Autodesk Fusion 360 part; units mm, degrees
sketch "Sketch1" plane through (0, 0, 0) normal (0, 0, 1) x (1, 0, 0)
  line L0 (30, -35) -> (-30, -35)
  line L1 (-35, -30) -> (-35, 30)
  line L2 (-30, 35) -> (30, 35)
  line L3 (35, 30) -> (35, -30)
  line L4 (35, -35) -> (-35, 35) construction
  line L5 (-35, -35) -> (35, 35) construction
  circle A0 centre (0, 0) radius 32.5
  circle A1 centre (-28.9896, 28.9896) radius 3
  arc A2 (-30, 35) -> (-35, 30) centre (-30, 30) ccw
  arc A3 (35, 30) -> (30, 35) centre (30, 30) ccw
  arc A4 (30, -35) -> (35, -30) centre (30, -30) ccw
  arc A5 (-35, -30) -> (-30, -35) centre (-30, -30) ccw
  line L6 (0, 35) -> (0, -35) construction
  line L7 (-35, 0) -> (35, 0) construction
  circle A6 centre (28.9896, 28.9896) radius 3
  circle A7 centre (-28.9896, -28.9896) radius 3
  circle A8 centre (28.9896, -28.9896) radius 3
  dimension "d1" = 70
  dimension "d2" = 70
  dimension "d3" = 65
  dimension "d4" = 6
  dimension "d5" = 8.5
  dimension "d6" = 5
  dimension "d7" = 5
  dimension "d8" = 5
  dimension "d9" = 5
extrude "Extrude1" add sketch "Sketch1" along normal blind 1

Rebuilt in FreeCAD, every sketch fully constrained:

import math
import FreeCAD as App
import Part
import Sketcher

V = App.Vector

doc = App.newDocument("Part")
body = doc.addObject("PartDesign::Body", "Body")

sketch1 = body.newObject("Sketcher::SketchObject", "Sketch")
sketch1.AttachmentSupport = (doc.getObject("XY_Plane"), [""])
sketch1.MapMode = "FlatFace"
sketch1.addGeometry([
    Part.LineSegment(V(-30, -35, 0), V(30, -35, 0)),
    Part.ArcOfCircle(Part.Circle(V(30, -30, 0), V(0, 0, 1), 5), math.radians(-90), math.radians(0)),
    Part.LineSegment(V(35, -30, 0), V(35, 30, 0)),
    Part.ArcOfCircle(Part.Circle(V(30, 30, 0), V(0, 0, 1), 5), math.radians(0), math.radians(90)),
    Part.LineSegment(V(30, 35, 0), V(-30, 35, 0)),
    Part.ArcOfCircle(Part.Circle(V(-30, 30, 0), V(0, 0, 1), 5), math.radians(90), math.radians(180)),
    Part.LineSegment(V(-35, 30, 0), V(-35, -30, 0)),
    Part.ArcOfCircle(Part.Circle(V(-30, -30, 0), V(0, 0, 1), 5), math.radians(180), math.radians(270)),
    Part.Circle(V(-28.9896, -28.9896, 0), V(0, 0, 1), 3),
    Part.Circle(V(28.9896, -28.9896, 0), V(0, 0, 1), 3),
    Part.Circle(V(-28.9896, 28.9896, 0), V(0, 0, 1), 3),
    Part.Circle(V(0, 0, 0), V(0, 0, 1), 32.5),
    Part.Circle(V(28.9896, 28.9896, 0), V(0, 0, 1), 3),
], False)
sketch1.addConstraint([
    Sketcher.Constraint("Tangent", 0, 2, 1, 1),
    Sketcher.Constraint("Tangent", 1, 2, 2, 1),
    Sketcher.Constraint("Tangent", 2, 2, 3, 1),
    Sketcher.Constraint("Tangent", 3, 2, 4, 1),
    Sketcher.Constraint("Tangent", 4, 2, 5, 1),
    Sketcher.Constraint("Tangent", 5, 2, 6, 1),
    Sketcher.Constraint("Tangent", 6, 2, 7, 1),
    Sketcher.Constraint("Tangent", 7, 2, 0, 1),
    Sketcher.Constraint("Horizontal", 0),
    Sketcher.Constraint("Vertical", 2),
    Sketcher.Constraint("Horizontal", 4),
    Sketcher.Constraint("Vertical", 6),
    Sketcher.Constraint("Coincident", 11, 3, -1, 1),
    Sketcher.Constraint("Equal", 1, 3),
    Sketcher.Constraint("Equal", 3, 5),
    Sketcher.Constraint("Equal", 5, 7),
    Sketcher.Constraint("Equal", 8, 9),
    Sketcher.Constraint("Equal", 9, 10),
    Sketcher.Constraint("Equal", 10, 12),
    Sketcher.Constraint("Symmetric", 1, 3, 5, 3, -1, 1),
    Sketcher.Constraint("Symmetric", 9, 3, 10, 3, -1, 1),
    Sketcher.Constraint("Symmetric", 8, 3, 12, 3, -1, 1),
    Sketcher.Constraint("Symmetric", 8, 3, 9, 3, -2),
    Sketcher.Constraint("Equal", 4, 2),
    Sketcher.Constraint("Diameter", 8, 6.0),
    Sketcher.Constraint("Diameter", 11, 65.0),
    Sketcher.Constraint("Radius", 1, 5.0),
    Sketcher.Constraint("DistanceX", 0, 1, 0, 2, 60.0),
    Sketcher.Constraint("DistanceX", 8, 3, -1, 1, 28.9896),
    Sketcher.Constraint("DistanceY", 8, 3, -1, 1, 28.9896),
])
pad1 = body.newObject("PartDesign::Pad", "Pad")
pad1.Profile = sketch1
pad1.Length = 1

doc.recompute()
